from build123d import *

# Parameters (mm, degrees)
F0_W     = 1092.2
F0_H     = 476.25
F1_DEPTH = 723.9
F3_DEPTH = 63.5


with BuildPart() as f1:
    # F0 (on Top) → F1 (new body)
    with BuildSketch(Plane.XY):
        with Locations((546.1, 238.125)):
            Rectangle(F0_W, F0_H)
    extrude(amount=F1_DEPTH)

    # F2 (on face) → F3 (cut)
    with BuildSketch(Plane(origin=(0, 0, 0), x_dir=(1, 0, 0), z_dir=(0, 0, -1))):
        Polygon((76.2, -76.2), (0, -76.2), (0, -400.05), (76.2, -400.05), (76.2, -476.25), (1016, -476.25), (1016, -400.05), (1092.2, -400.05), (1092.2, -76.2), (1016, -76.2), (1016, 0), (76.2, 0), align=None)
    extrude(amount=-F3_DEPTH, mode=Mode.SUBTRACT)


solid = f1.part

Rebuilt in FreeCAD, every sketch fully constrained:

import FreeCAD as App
import Part
import Sketcher
Q = App.Units.Quantity


def add_polygon(sketch, points):
    """Adds a closed chain of lines whose ends are joined by coincident constraints."""
    first, n = sketch.GeometryCount, len(points)
    for a, b in zip(points, points[1:] + points[:1]):
        sketch.addGeometry(Part.LineSegment(App.Vector(*a, 0), App.Vector(*b, 0)), False)
    for i in range(n):
        sketch.addConstraint(Sketcher.Constraint("Coincident", first + i, 2, first + (i + 1) % n, 1))

doc = App.newDocument("Part")
params = doc.addObject("Spreadsheet::Sheet", "Params")
for row, (alias, value) in enumerate([
    ("sketch1_width", "43 in"),
    ("sketch1_height", "18.75 in"),
    ("pad1_length", "28.5 in"),
    ("sketch2_width", "3 in"),
    ("sketch2_width2", "37 in"),
    ("sketch2_height", "12.75 in"),
    ("pocket1_length", "2.5 in"),
], start=1):
    params.set(f"A{row}", alias)
    params.set(f"B{row}", "=" + value)
    params.setAlias(f"B{row}", alias)

body = doc.addObject("PartDesign::Body", "Body")

sketch1 = body.newObject("Sketcher::SketchObject", "Sketch")
sketch1.AttachmentSupport = (doc.getObject("XY_Plane"), [""])
sketch1.MapMode = "FlatFace"
add_polygon(sketch1, [(0, 476), (0, 0), (1092, 0), (1092, 476)])
sketch1.addConstraint(Sketcher.Constraint("Vertical", 0))
sketch1.addConstraint(Sketcher.Constraint("Horizontal", 1))
sketch1.addConstraint(Sketcher.Constraint("Vertical", 2))
sketch1.addConstraint(Sketcher.Constraint("Horizontal", 3))
sketch1.addConstraint(Sketcher.Constraint("Coincident", 0, 2, -1, 1))
sketch1.addConstraint(Sketcher.Constraint("DistanceX", 1, 1, 1, 2, Q("43 in")))
sketch1.addConstraint(Sketcher.Constraint("DistanceY", 0, 2, 0, 1, Q("18.75 in")))
sketch1.setExpression("Constraints[9]", "Params.sketch1_width")
sketch1.setExpression("Constraints[10]", "Params.sketch1_height")
pad1 = body.newObject("PartDesign::Pad", "Pad")
pad1.Profile = sketch1
pad1.setExpression("Length", "Params.pad1_length")

sketch2 = body.newObject("Sketcher::SketchObject", "Sketch001")
sketch2.AttachmentSupport = (doc.getObject("XY_Plane"), [""])
sketch2.MapMode = "FlatFace"
add_polygon(sketch2, [(76, 76), (0, 76), (0, 400), (76, 400), (76, 476), (1016, 476), (1016, 400), (1092, 400), (1092, 76), (1016, 76), (1016, 0), (76, 0)])
sketch2.addConstraint(Sketcher.Constraint("Horizontal", 0))
sketch2.addConstraint(Sketcher.Constraint("Vertical", 1))
sketch2.addConstraint(Sketcher.Constraint("Horizontal", 2))
sketch2.addConstraint(Sketcher.Constraint("Vertical", 3))
sketch2.addConstraint(Sketcher.Constraint("Horizontal", 4))
sketch2.addConstraint(Sketcher.Constraint("Vertical", 5))
sketch2.addConstraint(Sketcher.Constraint("Horizontal", 6))
sketch2.addConstraint(Sketcher.Constraint("Vertical", 7))
sketch2.addConstraint(Sketcher.Constraint("Horizontal", 8))
sketch2.addConstraint(Sketcher.Constraint("Vertical", 9))
sketch2.addConstraint(Sketcher.Constraint("Horizontal", 10))
sketch2.addConstraint(Sketcher.Constraint("Vertical", 11))
sketch2.addConstraint(Sketcher.Constraint("PointOnObject", 0, 2, -2))
sketch2.addConstraint(Sketcher.Constraint("PointOnObject", 9, 2, -1))
sketch2.addConstraint(Sketcher.Constraint("Horizontal", 2, 2, 5, 2))
sketch2.addConstraint(Sketcher.Constraint("Horizontal", 0, 2, 7, 2))
sketch2.addConstraint(Sketcher.Constraint("Vertical", 5, 2, 8, 2))
sketch2.addConstraint(Sketcher.Constraint("Vertical", 3, 2, 10, 2))
sketch2.addConstraint(Sketcher.Constraint("Equal", 2, 6))
sketch2.addConstraint(Sketcher.Constraint("Equal", 8, 3))
sketch2.addConstraint(Sketcher.Constraint("Equal", 5, 9))
sketch2.addConstraint(Sketcher.Constraint("DistanceX", 0, 2, 0, 1, Q("3 in")))
sketch2.addConstraint(Sketcher.Constraint("DistanceX", 4, 1, 4, 2, Q("37 in")))
sketch2.addConstraint(Sketcher.Constraint("DistanceY", 1, 1, 1, 2, Q("12.75 in")))
sketch2.setExpression("Constraints[33]", "Params.sketch2_width")
sketch2.setExpression("Constraints[34]", "Params.sketch2_width2")
sketch2.setExpression("Constraints[35]", "Params.sketch2_height")
pocket1 = body.newObject("PartDesign::Pocket", "Pocket")
pocket1.Profile = sketch2
pocket1.setExpression("Length", "Params.pocket1_length")
pocket1.Reversed = True

doc.recompute()
